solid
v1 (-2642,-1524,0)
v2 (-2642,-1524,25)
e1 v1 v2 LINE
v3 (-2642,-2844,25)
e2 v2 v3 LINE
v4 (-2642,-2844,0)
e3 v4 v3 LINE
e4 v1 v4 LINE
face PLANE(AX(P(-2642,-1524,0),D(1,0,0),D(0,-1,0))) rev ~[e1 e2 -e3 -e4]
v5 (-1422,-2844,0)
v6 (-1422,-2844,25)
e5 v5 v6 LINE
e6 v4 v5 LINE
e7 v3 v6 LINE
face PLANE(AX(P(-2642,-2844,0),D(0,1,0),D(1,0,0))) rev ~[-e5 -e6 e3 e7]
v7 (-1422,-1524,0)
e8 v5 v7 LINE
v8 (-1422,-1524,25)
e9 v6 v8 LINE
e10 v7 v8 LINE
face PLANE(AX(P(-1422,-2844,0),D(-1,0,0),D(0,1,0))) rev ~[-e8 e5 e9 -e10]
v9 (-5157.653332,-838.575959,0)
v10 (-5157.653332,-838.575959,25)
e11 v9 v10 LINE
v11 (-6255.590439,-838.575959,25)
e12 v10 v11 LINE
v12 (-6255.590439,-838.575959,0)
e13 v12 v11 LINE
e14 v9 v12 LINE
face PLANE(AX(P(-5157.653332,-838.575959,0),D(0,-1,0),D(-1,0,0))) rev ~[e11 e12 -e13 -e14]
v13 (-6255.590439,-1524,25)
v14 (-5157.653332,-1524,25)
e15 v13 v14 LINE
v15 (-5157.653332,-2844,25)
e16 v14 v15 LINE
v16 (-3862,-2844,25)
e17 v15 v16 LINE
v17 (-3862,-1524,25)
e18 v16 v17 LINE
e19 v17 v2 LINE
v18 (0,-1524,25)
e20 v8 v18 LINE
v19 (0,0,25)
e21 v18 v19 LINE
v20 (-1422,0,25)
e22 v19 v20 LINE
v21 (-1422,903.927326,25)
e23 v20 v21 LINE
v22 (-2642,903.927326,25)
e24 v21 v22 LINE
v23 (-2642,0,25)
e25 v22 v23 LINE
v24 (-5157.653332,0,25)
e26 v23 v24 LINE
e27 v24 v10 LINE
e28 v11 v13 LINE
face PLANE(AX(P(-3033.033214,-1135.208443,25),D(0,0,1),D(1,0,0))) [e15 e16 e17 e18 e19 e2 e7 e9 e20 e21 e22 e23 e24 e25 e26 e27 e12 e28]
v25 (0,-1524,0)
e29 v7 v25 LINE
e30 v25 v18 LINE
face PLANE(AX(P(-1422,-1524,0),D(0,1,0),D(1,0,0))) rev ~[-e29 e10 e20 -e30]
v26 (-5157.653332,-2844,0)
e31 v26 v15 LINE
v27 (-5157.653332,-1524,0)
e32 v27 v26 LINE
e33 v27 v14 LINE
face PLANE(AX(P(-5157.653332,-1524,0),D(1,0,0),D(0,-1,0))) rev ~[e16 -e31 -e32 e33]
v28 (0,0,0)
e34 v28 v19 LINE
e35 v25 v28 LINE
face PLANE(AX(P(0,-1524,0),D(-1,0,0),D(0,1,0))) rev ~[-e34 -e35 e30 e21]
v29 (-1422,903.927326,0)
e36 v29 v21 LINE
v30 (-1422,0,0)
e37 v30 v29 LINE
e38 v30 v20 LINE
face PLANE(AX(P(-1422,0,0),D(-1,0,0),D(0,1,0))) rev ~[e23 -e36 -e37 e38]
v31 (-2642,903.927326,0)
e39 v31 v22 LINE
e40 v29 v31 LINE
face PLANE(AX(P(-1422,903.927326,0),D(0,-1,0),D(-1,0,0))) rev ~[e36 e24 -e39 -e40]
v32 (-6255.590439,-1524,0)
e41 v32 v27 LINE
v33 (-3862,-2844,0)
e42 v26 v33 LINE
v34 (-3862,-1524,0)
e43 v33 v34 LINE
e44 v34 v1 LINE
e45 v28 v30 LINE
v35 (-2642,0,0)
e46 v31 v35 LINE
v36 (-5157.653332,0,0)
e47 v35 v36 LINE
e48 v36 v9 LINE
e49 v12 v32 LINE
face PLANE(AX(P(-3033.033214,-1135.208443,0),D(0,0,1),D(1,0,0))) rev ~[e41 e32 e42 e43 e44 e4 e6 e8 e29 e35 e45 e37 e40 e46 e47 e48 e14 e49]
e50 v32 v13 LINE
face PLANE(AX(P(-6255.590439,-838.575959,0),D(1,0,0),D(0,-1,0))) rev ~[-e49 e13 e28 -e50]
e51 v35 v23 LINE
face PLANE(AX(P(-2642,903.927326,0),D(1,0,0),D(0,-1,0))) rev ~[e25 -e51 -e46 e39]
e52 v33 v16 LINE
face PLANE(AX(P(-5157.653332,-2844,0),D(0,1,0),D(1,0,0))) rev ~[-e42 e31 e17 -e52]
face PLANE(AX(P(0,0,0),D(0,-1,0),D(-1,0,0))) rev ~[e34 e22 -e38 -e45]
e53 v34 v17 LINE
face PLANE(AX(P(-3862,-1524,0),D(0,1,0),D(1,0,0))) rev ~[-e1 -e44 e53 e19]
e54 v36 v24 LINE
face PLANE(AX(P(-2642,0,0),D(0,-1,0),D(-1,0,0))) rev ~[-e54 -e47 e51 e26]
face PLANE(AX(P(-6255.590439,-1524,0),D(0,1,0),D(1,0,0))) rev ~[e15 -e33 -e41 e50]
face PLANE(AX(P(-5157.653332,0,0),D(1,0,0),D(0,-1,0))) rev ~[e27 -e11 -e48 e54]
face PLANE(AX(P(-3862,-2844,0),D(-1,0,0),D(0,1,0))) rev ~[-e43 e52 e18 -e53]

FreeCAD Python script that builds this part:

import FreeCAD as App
import Part
import Sketcher


def add_polygon(sketch, points):
    """Adds a closed chain of lines whose ends are joined by coincident constraints."""
    first, n = sketch.GeometryCount, len(points)
    for a, b in zip(points, points[1:] + points[:1]):
        sketch.addGeometry(Part.LineSegment(App.Vector(*a, 0), App.Vector(*b, 0)), False)
    for i in range(n):
        sketch.addConstraint(Sketcher.Constraint("Coincident", first + i, 2, first + (i + 1) % n, 1))

doc = App.newDocument("Part")
params = doc.addObject("Spreadsheet::Sheet", "Params")
for row, (alias, value) in enumerate([
    ("sketch1_width", "1422 mm"),
    ("sketch1_width2", "1220 mm"),
    ("sketch1_height", "1524 mm"),
    ("sketch1_height2", "1320 mm"),
    ("pad1_length", "25 mm"),
], start=1):
    params.set(f"A{row}", alias)
    params.set(f"B{row}", "=" + value)
    params.setAlias(f"B{row}", alias)

body = doc.addObject("PartDesign::Body", "Body")

# Sketch on XY plane
sketch1 = doc.addObject("Sketcher::SketchObject", "Sketch")
body.addObject(sketch1)
sketch1.AttachmentSupport = (doc.XY_Plane, [""])
sketch1.MapMode = "FlatFace"
add_polygon(sketch1, [(0, -1524), (0, 0), (-1422, 0), (-1422, 904), (-2642, 904), (-2642, 0), (-5158, 0), (-5158, -839), (-6256, -839), (-6256, -1524), (-5158, -1524), (-5158, -2844), (-3862, -2844), (-3862, -1524), (-2642, -1524), (-2642, -2844), (-1422, -2844), (-1422, -1524)])  # lines 0-17
sketch1.addConstraint([
    Sketcher.Constraint("Vertical", 0),
    Sketcher.Constraint("Horizontal", 1),
    Sketcher.Constraint("Vertical", 2),
    Sketcher.Constraint("Horizontal", 3),
    Sketcher.Constraint("Vertical", 4),
    Sketcher.Constraint("Horizontal", 5),
    Sketcher.Constraint("Vertical", 6),
    Sketcher.Constraint("Horizontal", 7),
    Sketcher.Constraint("Vertical", 8),
    Sketcher.Constraint("Horizontal", 9),
    Sketcher.Constraint("Vertical", 10),
    Sketcher.Constraint("Horizontal", 11),
    Sketcher.Constraint("Vertical", 12),
    Sketcher.Constraint("Horizontal", 13),
    Sketcher.Constraint("Vertical", 14),
    Sketcher.Constraint("Horizontal", 15),
    Sketcher.Constraint("Vertical", 16),
    Sketcher.Constraint("Horizontal", 17),
    Sketcher.Constraint("Coincident", 0, 2, -1, 1),
    Sketcher.Constraint("PointOnObject", 4, 2, -1),
    Sketcher.Constraint("Horizontal", 9, 2, 12, 2),
    Sketcher.Constraint("Horizontal", 11, 2, 14, 2),
    Sketcher.Constraint("Horizontal", 13, 2, 16, 2),
    Sketcher.Constraint("Vertical", 6, 2, 9, 2),
    Sketcher.Constraint("Vertical", 4, 2, 13, 2),
    Sketcher.Constraint("Vertical", 2, 2, 15, 2),
    Sketcher.Constraint("Equal", 3, 13),
    Sketcher.Constraint("DistanceX", 1, 2, 1, 1, 1422.0),
    Sketcher.Constraint("DistanceX", 3, 2, 3, 1, 1220.0),
    Sketcher.Constraint("DistanceY", 0, 1, 0, 2, 1524.0),
    Sketcher.Constraint("DistanceY", 10, 2, 10, 1, 1320.0),
    Sketcher.Constraint("DistanceX", 5, 2, 5, 1, 2515.653332),
    Sketcher.Constraint("DistanceY", 6, 2, 6, 1, 838.575959),
    Sketcher.Constraint("DistanceX", 7, 2, 7, 1, 1097.937107),
    Sketcher.Constraint("DistanceY", 2, 1, 2, 2, 903.927326),
])
sketch1.setExpression("Constraints[45]", "Params.sketch1_width")
sketch1.setExpression("Constraints[46]", "Params.sketch1_width2")
sketch1.setExpression("Constraints[47]", "Params.sketch1_height")
sketch1.setExpression("Constraints[48]", "Params.sketch1_height2")
pad1 = doc.addObject("PartDesign::Pad", "Pad")
body.addObject(pad1)
pad1.Profile = sketch1
pad1.setExpression("Length", "Params.pad1_length")

doc.recompute()
